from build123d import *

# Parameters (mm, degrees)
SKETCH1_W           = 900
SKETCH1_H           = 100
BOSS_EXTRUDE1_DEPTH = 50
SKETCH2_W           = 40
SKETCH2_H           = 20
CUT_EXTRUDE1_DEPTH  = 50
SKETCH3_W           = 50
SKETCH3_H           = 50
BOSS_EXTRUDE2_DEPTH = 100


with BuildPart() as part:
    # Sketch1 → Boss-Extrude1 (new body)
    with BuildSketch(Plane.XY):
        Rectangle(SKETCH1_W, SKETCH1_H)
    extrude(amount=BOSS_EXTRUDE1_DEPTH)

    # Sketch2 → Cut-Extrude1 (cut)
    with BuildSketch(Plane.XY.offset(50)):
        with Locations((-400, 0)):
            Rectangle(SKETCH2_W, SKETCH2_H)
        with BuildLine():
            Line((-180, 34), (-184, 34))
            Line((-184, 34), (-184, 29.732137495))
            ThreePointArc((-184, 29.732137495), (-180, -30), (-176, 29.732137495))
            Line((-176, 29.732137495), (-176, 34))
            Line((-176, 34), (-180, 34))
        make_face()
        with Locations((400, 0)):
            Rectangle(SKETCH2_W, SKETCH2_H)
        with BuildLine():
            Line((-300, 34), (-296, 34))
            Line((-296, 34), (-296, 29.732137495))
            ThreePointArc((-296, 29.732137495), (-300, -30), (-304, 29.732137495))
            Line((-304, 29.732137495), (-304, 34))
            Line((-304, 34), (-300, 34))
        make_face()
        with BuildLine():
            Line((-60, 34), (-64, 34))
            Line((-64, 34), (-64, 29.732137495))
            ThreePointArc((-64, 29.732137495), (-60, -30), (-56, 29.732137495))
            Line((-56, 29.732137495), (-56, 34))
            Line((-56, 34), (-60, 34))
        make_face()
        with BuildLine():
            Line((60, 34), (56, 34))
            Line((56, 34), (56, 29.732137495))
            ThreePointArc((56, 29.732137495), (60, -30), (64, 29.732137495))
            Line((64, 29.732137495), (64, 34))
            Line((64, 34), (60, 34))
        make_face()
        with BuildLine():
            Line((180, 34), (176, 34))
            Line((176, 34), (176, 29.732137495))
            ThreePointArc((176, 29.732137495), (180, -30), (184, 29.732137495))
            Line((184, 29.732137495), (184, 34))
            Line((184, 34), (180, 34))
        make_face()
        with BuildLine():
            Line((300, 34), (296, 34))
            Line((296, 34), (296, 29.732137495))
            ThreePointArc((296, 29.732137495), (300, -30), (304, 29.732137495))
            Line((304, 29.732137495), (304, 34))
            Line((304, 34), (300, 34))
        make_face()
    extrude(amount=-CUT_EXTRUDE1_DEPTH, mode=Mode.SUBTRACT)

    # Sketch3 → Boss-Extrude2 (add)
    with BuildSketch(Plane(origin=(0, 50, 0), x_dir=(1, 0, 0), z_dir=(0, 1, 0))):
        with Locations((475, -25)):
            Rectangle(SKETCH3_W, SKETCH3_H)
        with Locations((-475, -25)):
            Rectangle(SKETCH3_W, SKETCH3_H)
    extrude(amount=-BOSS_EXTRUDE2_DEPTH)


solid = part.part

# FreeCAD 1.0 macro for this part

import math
import FreeCAD as App
import Part
import Sketcher

V = App.Vector
Q = App.Units.Quantity

doc = App.newDocument("Part")
body = doc.addObject("PartDesign::Body", "Body")

# Sketch on XY plane
sketch1 = body.newObject("Sketcher::SketchObject", "Sketch")
sketch1.AttachmentSupport = (doc.getObject("XY_Plane"), [""])
sketch1.MapMode = "FlatFace"
sketch1.addGeometry([
    Part.LineSegment(V(-450, 50, 0), V(-450, -50, 0)),
    Part.LineSegment(V(-450, -50, 0), V(450, -50, 0)),
    Part.LineSegment(V(450, -50, 0), V(450, 50, 0)),
    Part.LineSegment(V(450, 50, 0), V(-450, 50, 0)),
], False)
sketch1.addConstraint([
    Sketcher.Constraint("Coincident", 0, 2, 1, 1),
    Sketcher.Constraint("Coincident", 1, 2, 2, 1),
    Sketcher.Constraint("Coincident", 2, 2, 3, 1),
    Sketcher.Constraint("Coincident", 3, 2, 0, 1),
    Sketcher.Constraint("Vertical", 0),
    Sketcher.Constraint("Horizontal", 1),
    Sketcher.Constraint("Vertical", 2),
    Sketcher.Constraint("Horizontal", 3),
    Sketcher.Constraint("Symmetric", 0, 2, 2, 2, -1, 1),
    Sketcher.Constraint("DistanceX", 1, 1, 1, 2, Q("900 mm")),
    Sketcher.Constraint("DistanceY", 0, 2, 0, 1, Q("100 mm")),
])
pad1 = body.newObject("PartDesign::Pad", "Pad")
pad1.Profile = sketch1
pad1.Length = 50

# Sketch on XY plane
sketch2 = body.newObject("Sketcher::SketchObject", "Sketch001")
sketch2.AttachmentSupport = (doc.getObject("XY_Plane"), [""])
sketch2.MapMode = "FlatFace"
sketch2.AttachmentOffset = App.Placement(V(0, 0, 50), App.Rotation())
sketch2.addGeometry([
    Part.LineSegment(V(-420, 10, 0), V(-420, -10, 0)),  # 0
    Part.LineSegment(V(-420, -10, 0), V(-380, -10, 0)),  # 1
    Part.LineSegment(V(-380, -10, 0), V(-380, 10, 0)),  # 2
    Part.LineSegment(V(-380, 10, 0), V(-420, 10, 0)),  # 3
    Part.LineSegment(V(-184, 34, 0), V(-184, 29.7, 0)),  # 4
    Part.ArcOfCircle(Part.Circle(V(-180, 0, 0), V(0, 0, 1), 30), math.radians(98), math.radians(442)),  # 5
    Part.LineSegment(V(-176, 29.7, 0), V(-176, 34, 0)),  # 6
    Part.LineSegment(V(-176, 34, 0), V(-184, 34, 0)),  # 7
    Part.LineSegment(V(380, 10, 0), V(380, -10, 0)),  # 8
    Part.LineSegment(V(380, -10, 0), V(420, -10, 0)),  # 9
    Part.LineSegment(V(420, -10, 0), V(420, 10, 0)),  # 10
    Part.LineSegment(V(420, 10, 0), V(380, 10, 0)),  # 11
    Part.LineSegment(V(-296, 29.7, 0), V(-296, 34, 0)),  # 12
    Part.LineSegment(V(-296, 34, 0), V(-304, 34, 0)),  # 13
    Part.LineSegment(V(-304, 34, 0), V(-304, 29.7, 0)),  # 14
    Part.ArcOfCircle(Part.Circle(V(-300, 0, 0), V(0, 0, 1), 30), math.radians(98), math.radians(442)),  # 15
    Part.LineSegment(V(-64, 34, 0), V(-64, 29.7, 0)),  # 16
    Part.ArcOfCircle(Part.Circle(V(-60, 0, 0), V(0, 0, 1), 30), math.radians(98), math.radians(442)),  # 17
    Part.LineSegment(V(-56, 29.7, 0), V(-56, 34, 0)),  # 18
    Part.LineSegment(V(-56, 34, 0), V(-64, 34, 0)),  # 19
    Part.LineSegment(V(56, 34, 0), V(56, 29.7, 0)),  # 20
    Part.ArcOfCircle(Part.Circle(V(60, 0, 0), V(0, 0, 1), 30), math.radians(98), math.radians(442)),  # 21
    Part.LineSegment(V(64, 29.7, 0), V(64, 34, 0)),  # 22
    Part.LineSegment(V(64, 34, 0), V(56, 34, 0)),  # 23
    Part.LineSegment(V(176, 34, 0), V(176, 29.7, 0)),  # 24
    Part.ArcOfCircle(Part.Circle(V(180, 0, 0), V(0, 0, 1), 30), math.radians(98), math.radians(442)),  # 25
    Part.LineSegment(V(184, 29.7, 0), V(184, 34, 0)),  # 26
    Part.LineSegment(V(184, 34, 0), V(176, 34, 0)),  # 27
    Part.LineSegment(V(296, 34, 0), V(296, 29.7, 0)),  # 28
    Part.ArcOfCircle(Part.Circle(V(300, 0, 0), V(0, 0, 1), 30), math.radians(98), math.radians(442)),  # 29
    Part.LineSegment(V(304, 29.7, 0), V(304, 34, 0)),  # 30
    Part.LineSegment(V(304, 34, 0), V(296, 34, 0)),  # 31
], False)
sketch2.addConstraint([
    Sketcher.Constraint("Coincident", 0, 2, 1, 1),
    Sketcher.Constraint("Coincident", 1, 2, 2, 1),
    Sketcher.Constraint("Coincident", 2, 2, 3, 1),
    Sketcher.Constraint("Coincident", 3, 2, 0, 1),
    Sketcher.Constraint("Coincident", 4, 2, 5, 1),
    Sketcher.Constraint("Coincident", 5, 2, 6, 1),
    Sketcher.Constraint("Coincident", 6, 2, 7, 1),
    Sketcher.Constraint("Coincident", 7, 2, 4, 1),
    Sketcher.Constraint("Coincident", 8, 2, 9, 1),
    Sketcher.Constraint("Coincident", 9, 2, 10, 1),
    Sketcher.Constraint("Coincident", 10, 2, 11, 1),
    Sketcher.Constraint("Coincident", 11, 2, 8, 1),
    Sketcher.Constraint("Coincident", 12, 2, 13, 1),
    Sketcher.Constraint("Coincident", 13, 2, 14, 1),
    Sketcher.Constraint("Coincident", 14, 2, 15, 1),
    Sketcher.Constraint("Coincident", 15, 2, 12, 1),
    Sketcher.Constraint("Coincident", 16, 2, 17, 1),
    Sketcher.Constraint("Coincident", 17, 2, 18, 1),
    Sketcher.Constraint("Coincident", 18, 2, 19, 1),
    Sketcher.Constraint("Coincident", 19, 2, 16, 1),
    Sketcher.Constraint("Coincident", 20, 2, 21, 1),
    Sketcher.Constraint("Coincident", 21, 2, 22, 1),
    Sketcher.Constraint("Coincident", 22, 2, 23, 1),
    Sketcher.Constraint("Coincident", 23, 2, 20, 1),
    Sketcher.Constraint("Coincident", 24, 2, 25, 1),
    Sketcher.Constraint("Coincident", 25, 2, 26, 1),
    Sketcher.Constraint("Coincident", 26, 2, 27, 1),
    Sketcher.Constraint("Coincident", 27, 2, 24, 1),
    Sketcher.Constraint("Coincident", 28, 2, 29, 1),
    Sketcher.Constraint("Coincident", 29, 2, 30, 1),
    Sketcher.Constraint("Coincident", 30, 2, 31, 1),
    Sketcher.Constraint("Coincident", 31, 2, 28, 1),
    Sketcher.Constraint("Vertical", 0),
    Sketcher.Constraint("Horizontal", 1),
    Sketcher.Constraint("Vertical", 2),
    Sketcher.Constraint("Horizontal", 3),
    Sketcher.Constraint("Vertical", 4),
    Sketcher.Constraint("Vertical", 6),
    Sketcher.Constraint("Horizontal", 7),
    Sketcher.Constraint("Vertical", 8),
    Sketcher.Constraint("Horizontal", 9),
    Sketcher.Constraint("Vertical", 10),
    Sketcher.Constraint("Horizontal", 11),
    Sketcher.Constraint("Vertical", 12),
    Sketcher.Constraint("Horizontal", 13),
    Sketcher.Constraint("Vertical", 14),
    Sketcher.Constraint("Vertical", 16),
    Sketcher.Constraint("Vertical", 18),
    Sketcher.Constraint("Horizontal", 19),
    Sketcher.Constraint("Vertical", 20),
    Sketcher.Constraint("Vertical", 22),
    Sketcher.Constraint("Horizontal", 23),
    Sketcher.Constraint("Vertical", 24),
    Sketcher.Constraint("Vertical", 26),
    Sketcher.Constraint("Horizontal", 27),
    Sketcher.Constraint("Vertical", 28),
    Sketcher.Constraint("Vertical", 30),
    Sketcher.Constraint("Horizontal", 31),
    Sketcher.Constraint("Equal", 5, 15),
    Sketcher.Constraint("Equal", 15, 17),
    Sketcher.Constraint("Equal", 17, 21),
    Sketcher.Constraint("Equal", 21, 25),
    Sketcher.Constraint("Equal", 25, 29),
    Sketcher.Constraint("Symmetric", 17, 3, 21, 3, -1, 1),
    Sketcher.Constraint("Symmetric", 5, 3, 25, 3, -1, 1),
    Sketcher.Constraint("Symmetric", 15, 3, 29, 3, -1, 1),
    Sketcher.Constraint("Symmetric", 2, 2, 8, 2, -1, 1),
    Sketcher.Constraint("Symmetric", 0, 2, 10, 2, -1, 1),
    Sketcher.Constraint("Symmetric", 17, 2, 20, 2, -2),
    Sketcher.Constraint("Symmetric", 19, 2, 22, 2, -2),
    Sketcher.Constraint("Symmetric", 5, 2, 24, 2, -2),
    Sketcher.Constraint("Symmetric", 7, 2, 26, 2, -2),
    Sketcher.Constraint("Symmetric", 15, 2, 28, 2, -2),
    Sketcher.Constraint("Symmetric", 13, 2, 30, 2, -2),
    Sketcher.Constraint("Horizontal", 4, 2, 5, 2),
    Sketcher.Constraint("Horizontal", 1, 2, 8, 2),
    Sketcher.Constraint("Horizontal", 7, 2, 12, 2),
    Sketcher.Constraint("Horizontal", 5, 2, 14, 2),
    Sketcher.Constraint("Horizontal", 14, 2, 15, 2),
    Sketcher.Constraint("Horizontal", 15, 2, 16, 2),
    Sketcher.Constraint("Horizontal", 16, 2, 17, 2),
    Sketcher.Constraint("Horizontal", 13, 2, 18, 2),
    Sketcher.Constraint("Radius", 5, Q("30 mm")),
    Sketcher.Constraint("DistanceX", 1, 1, 1, 2, Q("40 mm")),
    Sketcher.Constraint("DistanceX", 7, 2, 7, 1, Q("8 mm")),
    Sketcher.Constraint("DistanceY", 0, 2, 0, 1, Q("20 mm")),
    Sketcher.Constraint("DistanceX", 5, 3, -1, 1, Q("180 mm")),
    Sketcher.Constraint("DistanceX", 15, 3, -1, 1, Q("300 mm")),
    Sketcher.Constraint("DistanceX", 17, 3, -1, 1, Q("60 mm")),
    Sketcher.Constraint("DistanceX", 0, 2, -1, 1, Q("420 mm")),
    Sketcher.Constraint("DistanceY", -1, 1, 6, 2, Q("34 mm")),
])
pocket1 = body.newObject("PartDesign::Pocket", "Pocket")
pocket1.Profile = sketch2
pocket1.Length = 50

# Sketch on XZ plane
sketch3 = body.newObject("Sketcher::SketchObject", "Sketch002")
sketch3.AttachmentSupport = (doc.getObject("XZ_Plane"), [""])
sketch3.MapMode = "FlatFace"
sketch3.AttachmentOffset = App.Placement(V(0, 0, -50), App.Rotation())
sketch3.addGeometry([
    Part.LineSegment(V(450, 0, 0), V(450, 50, 0)),  # 0
    Part.LineSegment(V(450, 50, 0), V(500, 50, 0)),  # 1
    Part.LineSegment(V(500, 50, 0), V(500, 0, 0)),  # 2
    Part.LineSegment(V(500, 0, 0), V(450, 0, 0)),  # 3
    Part.LineSegment(V(-500, 0, 0), V(-500, 50, 0)),  # 4
    Part.LineSegment(V(-500, 50, 0), V(-450, 50, 0)),  # 5
    Part.LineSegment(V(-450, 50, 0), V(-450, 0, 0)),  # 6
    Part.LineSegment(V(-450, 0, 0), V(-500, 0, 0)),  # 7
], False)
sketch3.addConstraint([
    Sketcher.Constraint("Coincident", 0, 2, 1, 1),
    Sketcher.Constraint("Coincident", 1, 2, 2, 1),
    Sketcher.Constraint("Coincident", 2, 2, 3, 1),
    Sketcher.Constraint("Coincident", 3, 2, 0, 1),
    Sketcher.Constraint("Coincident", 4, 2, 5, 1),
    Sketcher.Constraint("Coincident", 5, 2, 6, 1),
    Sketcher.Constraint("Coincident", 6, 2, 7, 1),
    Sketcher.Constraint("Coincident", 7, 2, 4, 1),
    Sketcher.Constraint("Vertical", 0),
    Sketcher.Constraint("Horizontal", 1),
    Sketcher.Constraint("Vertical", 2),
    Sketcher.Constraint("Horizontal", 3),
    Sketcher.Constraint("Vertical", 4),
    Sketcher.Constraint("Horizontal", 5),
    Sketcher.Constraint("Vertical", 6),
    Sketcher.Constraint("Horizontal", 7),
    Sketcher.Constraint("Symmetric", 3, 2, 6, 2, -1, 1),
    Sketcher.Constraint("Symmetric", 1, 2, 4, 2, -2),
    Sketcher.Constraint("PointOnObject", 2, 2, -1),
    Sketcher.Constraint("Equal", 7, 0),
    Sketcher.Constraint("DistanceX", 1, 1, 1, 2, Q("50 mm")),
    Sketcher.Constraint("DistanceX", -1, 1, 0, 2, Q("450 mm")),
])
pad2 = body.newObject("PartDesign::Pad", "Pad001")
pad2.Profile = sketch3
pad2.Length = 100

doc.recompute()
